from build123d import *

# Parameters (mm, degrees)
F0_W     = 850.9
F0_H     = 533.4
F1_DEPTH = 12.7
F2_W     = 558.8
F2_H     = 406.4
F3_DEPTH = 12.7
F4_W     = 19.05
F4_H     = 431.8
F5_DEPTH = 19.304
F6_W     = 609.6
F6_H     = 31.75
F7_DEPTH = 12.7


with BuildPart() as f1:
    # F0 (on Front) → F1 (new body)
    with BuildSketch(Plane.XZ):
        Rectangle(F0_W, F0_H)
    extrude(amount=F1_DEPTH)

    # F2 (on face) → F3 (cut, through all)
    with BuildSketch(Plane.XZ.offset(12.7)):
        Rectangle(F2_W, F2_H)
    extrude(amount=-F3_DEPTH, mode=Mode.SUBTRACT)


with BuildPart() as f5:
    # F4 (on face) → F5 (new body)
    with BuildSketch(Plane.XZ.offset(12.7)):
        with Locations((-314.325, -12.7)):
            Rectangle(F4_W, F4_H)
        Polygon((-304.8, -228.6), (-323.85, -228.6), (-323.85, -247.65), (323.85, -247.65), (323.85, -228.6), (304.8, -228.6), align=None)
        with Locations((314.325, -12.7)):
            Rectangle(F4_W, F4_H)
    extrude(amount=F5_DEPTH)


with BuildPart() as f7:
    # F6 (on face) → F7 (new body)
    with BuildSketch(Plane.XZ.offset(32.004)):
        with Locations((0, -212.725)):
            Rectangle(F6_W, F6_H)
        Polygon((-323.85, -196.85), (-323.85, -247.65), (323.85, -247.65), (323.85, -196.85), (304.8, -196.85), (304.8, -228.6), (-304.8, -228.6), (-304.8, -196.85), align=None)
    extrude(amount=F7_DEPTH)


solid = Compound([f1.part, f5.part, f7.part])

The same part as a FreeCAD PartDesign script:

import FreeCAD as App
import Part
import Sketcher

V = App.Vector
Q = App.Units.Quantity

doc = App.newDocument("Part")
body = doc.addObject("PartDesign::Body", "Body")

sketch1 = doc.addObject("Sketcher::SketchObject", "Sketch")
body.addObject(sketch1)
sketch1.AttachmentSupport = (doc.XZ_Plane, [""])
sketch1.MapMode = "FlatFace"
sketch1.addGeometry([
    Part.LineSegment(V(-425.45, 266.7, 0), V(-425.45, -266.7, 0)),
    Part.LineSegment(V(-425.45, -266.7, 0), V(425.45, -266.7, 0)),
    Part.LineSegment(V(425.45, -266.7, 0), V(425.45, 266.7, 0)),
    Part.LineSegment(V(425.45, 266.7, 0), V(-425.45, 266.7, 0)),
], False)
sketch1.addConstraint([
    Sketcher.Constraint("Coincident", 0, 2, 1, 1),
    Sketcher.Constraint("Coincident", 1, 2, 2, 1),
    Sketcher.Constraint("Coincident", 2, 2, 3, 1),
    Sketcher.Constraint("Coincident", 3, 2, 0, 1),
    Sketcher.Constraint("Vertical", 0),
    Sketcher.Constraint("Horizontal", 1),
    Sketcher.Constraint("Vertical", 2),
    Sketcher.Constraint("Horizontal", 3),
    Sketcher.Constraint("Symmetric", 0, 2, 2, 2, -1, 1),
    Sketcher.Constraint("DistanceY", 0, 2, 0, 1, Q("21 in")),
    Sketcher.Constraint("DistanceX", 1, 1, 1, 2, Q("33.5 in")),
])
pad1 = doc.addObject("PartDesign::Pad", "Pad")
body.addObject(pad1)
pad1.Profile = sketch1
pad1.Length = Q("0.5 in")

sketch2 = doc.addObject("Sketcher::SketchObject", "Sketch001")
body.addObject(sketch2)
sketch2.AttachmentSupport = (doc.XZ_Plane, [""])
sketch2.MapMode = "FlatFace"
sketch2.AttachmentOffset = App.Placement(V(0, 0, 0.5 * 25.4), App.Rotation())
sketch2.addGeometry([
    Part.LineSegment(V(-279.4, 203.2, 0), V(-279.4, -203.2, 0)),
    Part.LineSegment(V(-279.4, -203.2, 0), V(279.4, -203.2, 0)),
    Part.LineSegment(V(279.4, -203.2, 0), V(279.4, 203.2, 0)),
    Part.LineSegment(V(279.4, 203.2, 0), V(-279.4, 203.2, 0)),
], False)
sketch2.addConstraint([
    Sketcher.Constraint("Coincident", 0, 2, 1, 1),
    Sketcher.Constraint("Coincident", 1, 2, 2, 1),
    Sketcher.Constraint("Coincident", 2, 2, 3, 1),
    Sketcher.Constraint("Coincident", 3, 2, 0, 1),
    Sketcher.Constraint("Vertical", 0),
    Sketcher.Constraint("Horizontal", 1),
    Sketcher.Constraint("Vertical", 2),
    Sketcher.Constraint("Horizontal", 3),
    Sketcher.Constraint("Symmetric", 0, 2, 2, 2, -1, 1),
    Sketcher.Constraint("DistanceX", 1, 1, 1, 2, Q("22 in")),
    Sketcher.Constraint("DistanceY", 0, 2, 0, 1, Q("16 in")),
])
pocket1 = doc.addObject("PartDesign::Pocket", "Pocket")
body.addObject(pocket1)
pocket1.Profile = sketch2
pocket1.Type = "ThroughAll"
body2 = doc.addObject("PartDesign::Body", "Body001")

sketch3 = doc.addObject("Sketcher::SketchObject", "Sketch002")
body2.addObject(sketch3)
sketch3.AttachmentSupport = (doc.getObject("XZ_Plane001"), [""])
sketch3.MapMode = "FlatFace"
sketch3.AttachmentOffset = App.Placement(V(0, 0, 0.5 * 25.4), App.Rotation())
sketch3.addGeometry([
    Part.LineSegment(V(-323.85, 203.2, 0), V(-323.85, -247.65, 0)),
    Part.LineSegment(V(-323.85, -247.65, 0), V(323.85, -247.65, 0)),
    Part.LineSegment(V(323.85, -247.65, 0), V(323.85, 203.2, 0)),
    Part.LineSegment(V(323.85, 203.2, 0), V(304.8, 203.2, 0)),
    Part.LineSegment(V(304.8, 203.2, 0), V(304.8, -228.6, 0)),
    Part.LineSegment(V(304.8, -228.6, 0), V(-304.8, -228.6, 0)),
    Part.LineSegment(V(-304.8, -228.6, 0), V(-304.8, 203.2, 0)),
    Part.LineSegment(V(-304.8, 203.2, 0), V(-323.85, 203.2, 0)),
], False)
sketch3.addConstraint([
    Sketcher.Constraint("Coincident", 0, 2, 1, 1),
    Sketcher.Constraint("Coincident", 1, 2, 2, 1),
    Sketcher.Constraint("Coincident", 2, 2, 3, 1),
    Sketcher.Constraint("Coincident", 3, 2, 4, 1),
    Sketcher.Constraint("Coincident", 4, 2, 5, 1),
    Sketcher.Constraint("Coincident", 5, 2, 6, 1),
    Sketcher.Constraint("Coincident", 6, 2, 7, 1),
    Sketcher.Constraint("Coincident", 7, 2, 0, 1),
    Sketcher.Constraint("Vertical", 0),
    Sketcher.Constraint("Horizontal", 1),
    Sketcher.Constraint("Vertical", 2),
    Sketcher.Constraint("Horizontal", 3),
    Sketcher.Constraint("Vertical", 4),
    Sketcher.Constraint("Horizontal", 5),
    Sketcher.Constraint("Vertical", 6),
    Sketcher.Constraint("Horizontal", 7),
    Sketcher.Constraint("Symmetric", 3, 2, 6, 2, -2),
    Sketcher.Constraint("Equal", 3, 7),
    Sketcher.Constraint("DistanceX", 5, 2, 5, 1, Q("24 in")),
    Sketcher.Constraint("DistanceY", 4, 2, 4, 1, Q("17 in")),
    Sketcher.Constraint("DistanceX", 1, 1, 1, 2, Q("25.5 in")),
    Sketcher.Constraint("DistanceY", -1, 1, 2, 2, Q("8 in")),
    Sketcher.Constraint("DistanceY", 0, 2, 0, 1, Q("17.75 in")),
])
pad2 = doc.addObject("PartDesign::Pad", "Pad001")
body2.addObject(pad2)
pad2.Profile = sketch3
pad2.Length = Q("0.76 in")
body3 = doc.addObject("PartDesign::Body", "Body002")

sketch4 = doc.addObject("Sketcher::SketchObject", "Sketch003")
body3.addObject(sketch4)
sketch4.AttachmentSupport = (doc.getObject("XZ_Plane002"), [""])
sketch4.MapMode = "FlatFace"
sketch4.AttachmentOffset = App.Placement(V(0, 0, 1.26 * 25.4), App.Rotation())
sketch4.addGeometry([
    Part.LineSegment(V(-323.85, -196.85, 0), V(-323.85, -247.65, 0)),
    Part.LineSegment(V(-323.85, -247.65, 0), V(323.85, -247.65, 0)),
    Part.LineSegment(V(323.85, -247.65, 0), V(323.85, -196.85, 0)),
    Part.LineSegment(V(323.85, -196.85, 0), V(-323.85, -196.85, 0)),
], False)
sketch4.addConstraint([
    Sketcher.Constraint("Coincident", 0, 2, 1, 1),
    Sketcher.Constraint("Coincident", 1, 2, 2, 1),
    Sketcher.Constraint("Coincident", 2, 2, 3, 1),
    Sketcher.Constraint("Coincident", 3, 2, 0, 1),
    Sketcher.Constraint("Vertical", 0),
    Sketcher.Constraint("Horizontal", 1),
    Sketcher.Constraint("Vertical", 2),
    Sketcher.Constraint("Horizontal", 3),
    Sketcher.Constraint("DistanceY", 0, 2, 0, 1, Q("2 in")),
    Sketcher.Constraint("DistanceX", 1, 1, 1, 2, Q("25.5 in")),
    Sketcher.Constraint("DistanceX", 0, 2, -1, 1, Q("12.75 in")),
    Sketcher.Constraint("DistanceY", 0, 2, -1, 1, Q("9.75 in")),
])
pad3 = doc.addObject("PartDesign::Pad", "Pad002")
body3.addObject(pad3)
pad3.Profile = sketch4
pad3.Length = Q("0.5 in")

doc.recompute()
